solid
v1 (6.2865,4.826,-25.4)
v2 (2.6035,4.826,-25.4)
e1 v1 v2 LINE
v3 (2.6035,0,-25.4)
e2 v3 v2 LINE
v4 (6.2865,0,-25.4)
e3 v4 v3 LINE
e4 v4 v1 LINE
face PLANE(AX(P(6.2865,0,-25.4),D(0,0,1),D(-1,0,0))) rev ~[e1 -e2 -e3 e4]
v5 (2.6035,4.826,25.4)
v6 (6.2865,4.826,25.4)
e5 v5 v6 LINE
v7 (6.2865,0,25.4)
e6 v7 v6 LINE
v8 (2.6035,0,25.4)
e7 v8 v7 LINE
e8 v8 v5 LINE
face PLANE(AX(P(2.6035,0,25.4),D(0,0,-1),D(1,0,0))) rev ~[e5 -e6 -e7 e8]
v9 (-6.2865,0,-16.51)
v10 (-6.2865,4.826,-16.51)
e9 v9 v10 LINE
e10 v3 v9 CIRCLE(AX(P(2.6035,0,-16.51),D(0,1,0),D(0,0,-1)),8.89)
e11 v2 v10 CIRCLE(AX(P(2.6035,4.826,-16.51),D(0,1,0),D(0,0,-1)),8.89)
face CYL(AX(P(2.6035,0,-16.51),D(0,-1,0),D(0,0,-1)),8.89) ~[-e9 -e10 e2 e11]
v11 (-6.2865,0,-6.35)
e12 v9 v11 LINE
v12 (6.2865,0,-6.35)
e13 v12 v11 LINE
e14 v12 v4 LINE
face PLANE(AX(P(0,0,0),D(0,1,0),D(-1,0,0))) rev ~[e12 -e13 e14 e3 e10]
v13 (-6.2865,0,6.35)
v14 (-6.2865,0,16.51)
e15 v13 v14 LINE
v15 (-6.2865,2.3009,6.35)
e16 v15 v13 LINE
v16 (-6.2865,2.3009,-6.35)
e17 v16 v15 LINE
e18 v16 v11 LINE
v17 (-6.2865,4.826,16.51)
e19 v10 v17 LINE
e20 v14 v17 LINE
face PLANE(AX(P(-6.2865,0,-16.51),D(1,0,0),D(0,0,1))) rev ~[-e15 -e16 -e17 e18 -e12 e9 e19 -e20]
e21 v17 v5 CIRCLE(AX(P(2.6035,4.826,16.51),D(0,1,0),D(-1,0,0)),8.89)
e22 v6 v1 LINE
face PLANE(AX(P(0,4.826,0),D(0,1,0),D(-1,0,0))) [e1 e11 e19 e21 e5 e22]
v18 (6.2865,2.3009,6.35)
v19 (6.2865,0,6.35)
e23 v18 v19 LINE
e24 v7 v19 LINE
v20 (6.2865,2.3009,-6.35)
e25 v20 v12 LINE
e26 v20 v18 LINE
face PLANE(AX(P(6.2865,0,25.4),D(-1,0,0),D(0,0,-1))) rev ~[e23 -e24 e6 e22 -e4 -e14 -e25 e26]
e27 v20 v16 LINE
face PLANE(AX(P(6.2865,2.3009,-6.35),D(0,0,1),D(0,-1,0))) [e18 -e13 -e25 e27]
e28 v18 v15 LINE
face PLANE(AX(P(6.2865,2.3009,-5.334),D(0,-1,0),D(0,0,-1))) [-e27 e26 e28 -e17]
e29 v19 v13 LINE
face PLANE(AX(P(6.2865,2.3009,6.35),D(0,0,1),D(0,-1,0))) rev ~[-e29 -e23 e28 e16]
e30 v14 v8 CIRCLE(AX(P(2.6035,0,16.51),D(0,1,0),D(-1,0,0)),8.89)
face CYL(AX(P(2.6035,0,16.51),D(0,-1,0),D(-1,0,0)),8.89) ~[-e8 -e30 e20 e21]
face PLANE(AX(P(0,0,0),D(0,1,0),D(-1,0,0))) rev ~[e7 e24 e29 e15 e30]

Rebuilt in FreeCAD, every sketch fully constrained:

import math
import FreeCAD as App
import Part
import Sketcher
from FreeCAD import Vector
Q = App.Units.Quantity


def add_polygon(sketch, points):
    """Adds a closed chain of lines whose ends are joined by coincident constraints."""
    first, n = sketch.GeometryCount, len(points)
    for a, b in zip(points, points[1:] + points[:1]):
        sketch.addGeometry(Part.LineSegment(App.Vector(*a, 0), App.Vector(*b, 0)), False)
    for i in range(n):
        sketch.addConstraint(Sketcher.Constraint("Coincident", first + i, 2, first + (i + 1) % n, 1))

doc = App.newDocument("Part")
body = doc.addObject("PartDesign::Body", "Body")

sketch1 = body.newObject("Sketcher::SketchObject", "Sketch")
sketch1.AttachmentSupport = (doc.getObject("XZ_Plane"), [""])
sketch1.MapMode = "FlatFace"
sketch1.addGeometry(Part.ArcOfCircle(Part.Circle(Vector(2.6, 16.5, 0), Vector(0, 0, 1), 8.9), math.radians(90), math.radians(180)), False)
sketch1.addGeometry(Part.LineSegment(Vector(2.6, 25.4, 0), Vector(6.3, 25.4, 0)), False)
sketch1.addGeometry(Part.LineSegment(Vector(6.3, 25.4, 0), Vector(6.3, -25.4, 0)), False)
sketch1.addGeometry(Part.LineSegment(Vector(6.3, -25.4, 0), Vector(2.6, -25.4, 0)), False)
sketch1.addGeometry(Part.ArcOfCircle(Part.Circle(Vector(2.6, -16.5, 0), Vector(0, 0, 1), 8.9), math.radians(180), math.radians(270)), False)
sketch1.addGeometry(Part.LineSegment(Vector(-6.3, -16.5, 0), Vector(-6.3, 16.5, 0)), False)
sketch1.addConstraint(Sketcher.Constraint("Tangent", 0, 1, 1, 1))
sketch1.addConstraint(Sketcher.Constraint("Coincident", 1, 2, 2, 1))
sketch1.addConstraint(Sketcher.Constraint("Coincident", 2, 2, 3, 1))
sketch1.addConstraint(Sketcher.Constraint("Tangent", 3, 2, 4, 2))
sketch1.addConstraint(Sketcher.Constraint("Tangent", 4, 1, 5, 1))
sketch1.addConstraint(Sketcher.Constraint("Tangent", 5, 2, 0, 2))
sketch1.addConstraint(Sketcher.Constraint("Horizontal", 1))
sketch1.addConstraint(Sketcher.Constraint("Vertical", 2))
sketch1.addConstraint(Sketcher.Constraint("Horizontal", 3))
sketch1.addConstraint(Sketcher.Constraint("Vertical", 5))
sketch1.addConstraint(Sketcher.Constraint("Equal", 0, 4))
sketch1.addConstraint(Sketcher.Constraint("DistanceY", 2, 2, 2, 1, Q("2 in")))
sketch1.addConstraint(Sketcher.Constraint("Radius", 0, Q("0.35 in")))
sketch1.addConstraint(Sketcher.Constraint("DistanceY", -1, 1, 0, 1, Q("1 in")))
sketch1.addConstraint(Sketcher.Constraint("DistanceX", 4, 1, 2, 2, Q("0.495 in")))
sketch1.addConstraint(Sketcher.Constraint("DistanceX", -1, 1, 0, 3, Q("0.1025 in")))
pad1 = body.newObject("PartDesign::Pad", "Pad")
pad1.Profile = sketch1
pad1.Length = Q("0.19 in")
pad1.Reversed = True

sketch2 = body.newObject("Sketcher::SketchObject", "Sketch001")
sketch2.AttachmentSupport = (doc.getObject("YZ_Plane"), [""])
sketch2.MapMode = "FlatFace"
sketch2.AttachmentOffset = App.Placement(Vector(0, 0, 0.2475 * 25.4), App.Rotation())
add_polygon(sketch2, [(0, 6.3), (0, -6.3), (2.3, -6.3), (2.3, 6.3)])
sketch2.addConstraint(Sketcher.Constraint("Vertical", 0))
sketch2.addConstraint(Sketcher.Constraint("Horizontal", 1))
sketch2.addConstraint(Sketcher.Constraint("Vertical", 2))
sketch2.addConstraint(Sketcher.Constraint("Horizontal", 3))
sketch2.addConstraint(Sketcher.Constraint("Symmetric", 0, 2, 3, 2, -1, 1))
sketch2.addConstraint(Sketcher.Constraint("DistanceY", 0, 2, 0, 1, Q("0.5 in")))
sketch2.addConstraint(Sketcher.Constraint("DistanceX", 1, 1, 1, 2, Q("0.0905906 in")))
pocket1 = body.newObject("PartDesign::Pocket", "Pocket")
pocket1.Profile = sketch2
pocket1.Length = Q("0.5 in")

doc.recompute()
